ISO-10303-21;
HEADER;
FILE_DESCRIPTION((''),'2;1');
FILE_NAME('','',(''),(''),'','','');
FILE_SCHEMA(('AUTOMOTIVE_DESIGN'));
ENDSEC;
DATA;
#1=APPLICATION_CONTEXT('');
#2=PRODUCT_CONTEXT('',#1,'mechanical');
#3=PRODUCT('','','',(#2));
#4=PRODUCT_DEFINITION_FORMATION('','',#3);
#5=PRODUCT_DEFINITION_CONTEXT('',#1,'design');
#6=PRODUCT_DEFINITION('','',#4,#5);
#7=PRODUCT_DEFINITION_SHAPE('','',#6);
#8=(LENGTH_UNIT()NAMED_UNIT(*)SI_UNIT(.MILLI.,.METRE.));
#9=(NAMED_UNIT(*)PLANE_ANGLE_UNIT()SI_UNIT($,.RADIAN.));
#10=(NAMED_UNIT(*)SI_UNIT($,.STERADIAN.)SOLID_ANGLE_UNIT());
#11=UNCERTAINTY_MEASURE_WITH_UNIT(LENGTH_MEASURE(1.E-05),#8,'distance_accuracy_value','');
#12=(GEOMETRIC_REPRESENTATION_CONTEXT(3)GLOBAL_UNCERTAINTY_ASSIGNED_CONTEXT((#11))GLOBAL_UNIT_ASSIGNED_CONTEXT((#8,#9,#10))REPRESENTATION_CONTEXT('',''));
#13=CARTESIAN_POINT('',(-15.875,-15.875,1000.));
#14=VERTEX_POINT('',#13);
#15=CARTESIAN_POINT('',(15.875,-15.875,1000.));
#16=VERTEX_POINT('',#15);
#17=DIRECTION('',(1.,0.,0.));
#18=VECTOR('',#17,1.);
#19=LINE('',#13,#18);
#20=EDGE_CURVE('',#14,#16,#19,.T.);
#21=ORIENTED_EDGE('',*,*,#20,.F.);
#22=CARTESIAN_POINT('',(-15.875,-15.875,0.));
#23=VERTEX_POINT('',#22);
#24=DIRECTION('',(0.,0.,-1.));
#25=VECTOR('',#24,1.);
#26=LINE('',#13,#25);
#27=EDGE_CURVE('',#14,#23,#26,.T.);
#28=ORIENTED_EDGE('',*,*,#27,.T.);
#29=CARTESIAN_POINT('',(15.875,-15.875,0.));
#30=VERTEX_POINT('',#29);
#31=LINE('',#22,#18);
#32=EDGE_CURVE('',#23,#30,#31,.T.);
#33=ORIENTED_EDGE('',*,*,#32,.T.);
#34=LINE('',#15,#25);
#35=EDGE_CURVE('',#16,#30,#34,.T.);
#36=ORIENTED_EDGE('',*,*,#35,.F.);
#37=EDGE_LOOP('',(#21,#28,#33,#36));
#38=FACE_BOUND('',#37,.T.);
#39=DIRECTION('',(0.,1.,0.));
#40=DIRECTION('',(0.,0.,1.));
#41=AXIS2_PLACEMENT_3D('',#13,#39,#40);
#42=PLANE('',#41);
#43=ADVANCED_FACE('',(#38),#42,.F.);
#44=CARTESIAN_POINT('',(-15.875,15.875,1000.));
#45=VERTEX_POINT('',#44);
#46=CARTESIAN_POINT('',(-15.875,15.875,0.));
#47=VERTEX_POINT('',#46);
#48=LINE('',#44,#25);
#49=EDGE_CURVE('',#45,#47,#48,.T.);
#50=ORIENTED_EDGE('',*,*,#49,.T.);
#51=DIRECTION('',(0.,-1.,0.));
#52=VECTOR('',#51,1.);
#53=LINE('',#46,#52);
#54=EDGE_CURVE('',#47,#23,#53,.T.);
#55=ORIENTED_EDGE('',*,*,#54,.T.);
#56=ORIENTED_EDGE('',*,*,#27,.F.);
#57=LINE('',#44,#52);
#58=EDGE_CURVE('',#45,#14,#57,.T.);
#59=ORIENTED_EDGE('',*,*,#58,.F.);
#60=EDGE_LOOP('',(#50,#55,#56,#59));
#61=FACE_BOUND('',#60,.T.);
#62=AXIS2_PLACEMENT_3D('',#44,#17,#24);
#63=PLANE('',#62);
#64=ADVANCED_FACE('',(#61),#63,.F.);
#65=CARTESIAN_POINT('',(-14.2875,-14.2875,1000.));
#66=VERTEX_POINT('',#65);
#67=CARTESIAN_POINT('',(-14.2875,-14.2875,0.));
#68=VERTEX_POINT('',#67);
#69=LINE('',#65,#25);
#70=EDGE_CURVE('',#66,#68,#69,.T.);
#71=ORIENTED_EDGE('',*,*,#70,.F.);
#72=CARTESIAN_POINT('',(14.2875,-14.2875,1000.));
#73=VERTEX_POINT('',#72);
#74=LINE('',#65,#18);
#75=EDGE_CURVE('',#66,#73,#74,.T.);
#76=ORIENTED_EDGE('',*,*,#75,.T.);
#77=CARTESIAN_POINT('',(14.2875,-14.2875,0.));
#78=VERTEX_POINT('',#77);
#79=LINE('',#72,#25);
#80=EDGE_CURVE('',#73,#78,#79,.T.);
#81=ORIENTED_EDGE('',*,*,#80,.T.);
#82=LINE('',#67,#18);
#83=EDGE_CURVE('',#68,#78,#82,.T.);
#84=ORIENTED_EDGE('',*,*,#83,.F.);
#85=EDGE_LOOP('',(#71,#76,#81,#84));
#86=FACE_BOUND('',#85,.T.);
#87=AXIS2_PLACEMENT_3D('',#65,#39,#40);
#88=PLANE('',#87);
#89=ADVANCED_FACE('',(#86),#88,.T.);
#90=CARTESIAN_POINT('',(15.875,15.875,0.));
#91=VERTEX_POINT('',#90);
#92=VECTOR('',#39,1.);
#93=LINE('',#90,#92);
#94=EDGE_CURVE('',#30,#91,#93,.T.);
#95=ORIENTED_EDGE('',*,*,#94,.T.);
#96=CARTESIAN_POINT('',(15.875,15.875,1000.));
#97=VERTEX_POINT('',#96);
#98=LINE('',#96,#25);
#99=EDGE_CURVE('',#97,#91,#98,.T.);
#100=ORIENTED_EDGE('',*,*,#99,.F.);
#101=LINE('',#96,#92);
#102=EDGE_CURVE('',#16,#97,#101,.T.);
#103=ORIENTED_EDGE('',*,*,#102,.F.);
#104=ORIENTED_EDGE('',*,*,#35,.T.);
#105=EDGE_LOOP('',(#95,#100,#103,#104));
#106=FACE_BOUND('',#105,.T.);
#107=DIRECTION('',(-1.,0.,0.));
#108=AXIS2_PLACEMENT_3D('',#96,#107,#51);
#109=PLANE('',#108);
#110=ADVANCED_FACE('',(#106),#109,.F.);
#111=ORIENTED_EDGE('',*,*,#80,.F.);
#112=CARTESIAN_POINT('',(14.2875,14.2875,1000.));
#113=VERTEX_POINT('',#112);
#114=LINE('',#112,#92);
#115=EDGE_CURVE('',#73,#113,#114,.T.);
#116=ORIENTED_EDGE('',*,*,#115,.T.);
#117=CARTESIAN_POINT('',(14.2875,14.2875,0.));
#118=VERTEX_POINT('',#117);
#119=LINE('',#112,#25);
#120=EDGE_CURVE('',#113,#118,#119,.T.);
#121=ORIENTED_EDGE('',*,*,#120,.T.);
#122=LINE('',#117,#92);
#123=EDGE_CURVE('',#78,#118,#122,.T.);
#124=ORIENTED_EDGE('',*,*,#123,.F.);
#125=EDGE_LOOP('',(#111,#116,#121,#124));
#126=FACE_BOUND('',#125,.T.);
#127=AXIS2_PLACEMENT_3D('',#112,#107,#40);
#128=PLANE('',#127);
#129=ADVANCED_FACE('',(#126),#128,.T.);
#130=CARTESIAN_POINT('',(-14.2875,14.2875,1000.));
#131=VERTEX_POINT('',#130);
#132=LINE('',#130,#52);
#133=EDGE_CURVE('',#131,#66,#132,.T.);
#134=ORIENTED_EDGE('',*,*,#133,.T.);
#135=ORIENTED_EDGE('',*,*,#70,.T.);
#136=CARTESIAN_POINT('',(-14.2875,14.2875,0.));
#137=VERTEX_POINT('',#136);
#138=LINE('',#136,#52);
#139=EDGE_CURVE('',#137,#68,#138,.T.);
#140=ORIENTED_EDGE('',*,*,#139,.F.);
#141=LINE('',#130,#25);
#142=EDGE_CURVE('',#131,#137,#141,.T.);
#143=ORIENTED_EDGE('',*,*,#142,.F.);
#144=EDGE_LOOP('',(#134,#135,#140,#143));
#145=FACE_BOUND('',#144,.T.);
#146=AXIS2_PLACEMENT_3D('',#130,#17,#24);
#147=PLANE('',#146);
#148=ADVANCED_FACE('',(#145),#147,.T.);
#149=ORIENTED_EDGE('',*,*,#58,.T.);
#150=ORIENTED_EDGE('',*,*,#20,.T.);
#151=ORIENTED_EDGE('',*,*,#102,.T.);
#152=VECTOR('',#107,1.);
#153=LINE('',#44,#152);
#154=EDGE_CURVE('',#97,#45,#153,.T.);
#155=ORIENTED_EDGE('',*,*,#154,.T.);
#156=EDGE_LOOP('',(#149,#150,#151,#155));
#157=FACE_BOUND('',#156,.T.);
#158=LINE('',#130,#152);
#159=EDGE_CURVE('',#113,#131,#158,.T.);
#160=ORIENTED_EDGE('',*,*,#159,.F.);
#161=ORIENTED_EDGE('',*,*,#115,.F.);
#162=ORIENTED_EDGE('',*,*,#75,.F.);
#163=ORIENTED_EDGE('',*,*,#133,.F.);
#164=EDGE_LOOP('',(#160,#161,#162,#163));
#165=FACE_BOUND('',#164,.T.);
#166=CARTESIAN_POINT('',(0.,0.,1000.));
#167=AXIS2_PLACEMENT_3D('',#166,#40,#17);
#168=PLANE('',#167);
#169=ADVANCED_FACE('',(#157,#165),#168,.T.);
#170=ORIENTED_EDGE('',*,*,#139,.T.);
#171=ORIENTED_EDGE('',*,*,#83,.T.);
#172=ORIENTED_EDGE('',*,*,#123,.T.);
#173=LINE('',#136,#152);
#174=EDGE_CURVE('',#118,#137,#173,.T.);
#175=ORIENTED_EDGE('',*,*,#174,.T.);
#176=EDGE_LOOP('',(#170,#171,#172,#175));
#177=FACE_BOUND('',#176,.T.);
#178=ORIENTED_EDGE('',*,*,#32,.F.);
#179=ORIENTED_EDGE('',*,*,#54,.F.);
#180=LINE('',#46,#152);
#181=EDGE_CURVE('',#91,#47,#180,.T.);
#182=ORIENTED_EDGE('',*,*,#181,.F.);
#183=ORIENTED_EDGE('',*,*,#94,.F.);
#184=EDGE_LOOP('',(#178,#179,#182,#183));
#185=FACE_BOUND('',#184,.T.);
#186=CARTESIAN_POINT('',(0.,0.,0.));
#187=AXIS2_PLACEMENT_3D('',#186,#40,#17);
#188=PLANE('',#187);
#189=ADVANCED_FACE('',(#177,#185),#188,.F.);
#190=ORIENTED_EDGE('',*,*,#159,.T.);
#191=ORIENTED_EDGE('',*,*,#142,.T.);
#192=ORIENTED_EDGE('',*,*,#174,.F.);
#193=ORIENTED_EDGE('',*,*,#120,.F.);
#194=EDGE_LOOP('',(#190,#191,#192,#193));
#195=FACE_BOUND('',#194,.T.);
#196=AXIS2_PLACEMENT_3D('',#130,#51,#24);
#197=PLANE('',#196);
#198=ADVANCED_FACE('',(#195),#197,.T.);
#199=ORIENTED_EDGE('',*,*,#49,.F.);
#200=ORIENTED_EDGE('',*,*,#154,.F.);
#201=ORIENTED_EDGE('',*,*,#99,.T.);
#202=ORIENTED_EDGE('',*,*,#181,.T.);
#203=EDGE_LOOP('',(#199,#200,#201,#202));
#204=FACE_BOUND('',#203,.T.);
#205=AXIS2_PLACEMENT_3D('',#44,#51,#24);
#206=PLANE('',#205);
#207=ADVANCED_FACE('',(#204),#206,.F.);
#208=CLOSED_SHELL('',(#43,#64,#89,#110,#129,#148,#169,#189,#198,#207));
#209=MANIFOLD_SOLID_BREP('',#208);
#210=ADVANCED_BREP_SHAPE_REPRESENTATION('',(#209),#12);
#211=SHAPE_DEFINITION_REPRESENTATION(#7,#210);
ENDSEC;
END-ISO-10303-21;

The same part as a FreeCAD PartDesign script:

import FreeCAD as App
import Part
import Sketcher
from FreeCAD import Vector
Q = App.Units.Quantity


def add_polygon(sketch, points):
    """Adds a closed chain of lines whose ends are joined by coincident constraints."""
    first, n = sketch.GeometryCount, len(points)
    for a, b in zip(points, points[1:] + points[:1]):
        sketch.addGeometry(Part.LineSegment(App.Vector(*a, 0), App.Vector(*b, 0)), False)
    for i in range(n):
        sketch.addConstraint(Sketcher.Constraint("Coincident", first + i, 2, first + (i + 1) % n, 1))

doc = App.newDocument("Part")
body = doc.addObject("PartDesign::Body", "Body")

sketch1 = body.newObject("Sketcher::SketchObject", "Sketch")
sketch1.AttachmentSupport = (doc.getObject("XY_Plane"), [""])
sketch1.MapMode = "FlatFace"
add_polygon(sketch1, [(-16, 16), (-16, -16), (16, -16), (16, 16)])
add_polygon(sketch1, [(14, -14), (-14, -14), (-14, 14), (14, 14)])
sketch1.addConstraint(Sketcher.Constraint("Vertical", 0))
sketch1.addConstraint(Sketcher.Constraint("Horizontal", 1))
sketch1.addConstraint(Sketcher.Constraint("Vertical", 2))
sketch1.addConstraint(Sketcher.Constraint("Horizontal", 3))
sketch1.addConstraint(Sketcher.Constraint("Horizontal", 4))
sketch1.addConstraint(Sketcher.Constraint("Vertical", 5))
sketch1.addConstraint(Sketcher.Constraint("Horizontal", 6))
sketch1.addConstraint(Sketcher.Constraint("Vertical", 7))
sketch1.addConstraint(Sketcher.Constraint("Symmetric", 0, 2, 2, 2, -1, 1))
sketch1.addConstraint(Sketcher.Constraint("Symmetric", 4, 2, 6, 2, -1, 1))
sketch1.addConstraint(Sketcher.Constraint("Equal", 3, 0))
sketch1.addConstraint(Sketcher.Constraint("Equal", 6, 5))
sketch1.addConstraint(Sketcher.Constraint("DistanceX", 1, 1, 1, 2, Q("1.25 in")))
sketch1.addConstraint(Sketcher.Constraint("DistanceX", 4, 2, 4, 1, Q("1.125 in")))
pad1 = body.newObject("PartDesign::Pad", "Pad")
pad1.Profile = sketch1
pad1.Length = 1000

doc.recompute()
